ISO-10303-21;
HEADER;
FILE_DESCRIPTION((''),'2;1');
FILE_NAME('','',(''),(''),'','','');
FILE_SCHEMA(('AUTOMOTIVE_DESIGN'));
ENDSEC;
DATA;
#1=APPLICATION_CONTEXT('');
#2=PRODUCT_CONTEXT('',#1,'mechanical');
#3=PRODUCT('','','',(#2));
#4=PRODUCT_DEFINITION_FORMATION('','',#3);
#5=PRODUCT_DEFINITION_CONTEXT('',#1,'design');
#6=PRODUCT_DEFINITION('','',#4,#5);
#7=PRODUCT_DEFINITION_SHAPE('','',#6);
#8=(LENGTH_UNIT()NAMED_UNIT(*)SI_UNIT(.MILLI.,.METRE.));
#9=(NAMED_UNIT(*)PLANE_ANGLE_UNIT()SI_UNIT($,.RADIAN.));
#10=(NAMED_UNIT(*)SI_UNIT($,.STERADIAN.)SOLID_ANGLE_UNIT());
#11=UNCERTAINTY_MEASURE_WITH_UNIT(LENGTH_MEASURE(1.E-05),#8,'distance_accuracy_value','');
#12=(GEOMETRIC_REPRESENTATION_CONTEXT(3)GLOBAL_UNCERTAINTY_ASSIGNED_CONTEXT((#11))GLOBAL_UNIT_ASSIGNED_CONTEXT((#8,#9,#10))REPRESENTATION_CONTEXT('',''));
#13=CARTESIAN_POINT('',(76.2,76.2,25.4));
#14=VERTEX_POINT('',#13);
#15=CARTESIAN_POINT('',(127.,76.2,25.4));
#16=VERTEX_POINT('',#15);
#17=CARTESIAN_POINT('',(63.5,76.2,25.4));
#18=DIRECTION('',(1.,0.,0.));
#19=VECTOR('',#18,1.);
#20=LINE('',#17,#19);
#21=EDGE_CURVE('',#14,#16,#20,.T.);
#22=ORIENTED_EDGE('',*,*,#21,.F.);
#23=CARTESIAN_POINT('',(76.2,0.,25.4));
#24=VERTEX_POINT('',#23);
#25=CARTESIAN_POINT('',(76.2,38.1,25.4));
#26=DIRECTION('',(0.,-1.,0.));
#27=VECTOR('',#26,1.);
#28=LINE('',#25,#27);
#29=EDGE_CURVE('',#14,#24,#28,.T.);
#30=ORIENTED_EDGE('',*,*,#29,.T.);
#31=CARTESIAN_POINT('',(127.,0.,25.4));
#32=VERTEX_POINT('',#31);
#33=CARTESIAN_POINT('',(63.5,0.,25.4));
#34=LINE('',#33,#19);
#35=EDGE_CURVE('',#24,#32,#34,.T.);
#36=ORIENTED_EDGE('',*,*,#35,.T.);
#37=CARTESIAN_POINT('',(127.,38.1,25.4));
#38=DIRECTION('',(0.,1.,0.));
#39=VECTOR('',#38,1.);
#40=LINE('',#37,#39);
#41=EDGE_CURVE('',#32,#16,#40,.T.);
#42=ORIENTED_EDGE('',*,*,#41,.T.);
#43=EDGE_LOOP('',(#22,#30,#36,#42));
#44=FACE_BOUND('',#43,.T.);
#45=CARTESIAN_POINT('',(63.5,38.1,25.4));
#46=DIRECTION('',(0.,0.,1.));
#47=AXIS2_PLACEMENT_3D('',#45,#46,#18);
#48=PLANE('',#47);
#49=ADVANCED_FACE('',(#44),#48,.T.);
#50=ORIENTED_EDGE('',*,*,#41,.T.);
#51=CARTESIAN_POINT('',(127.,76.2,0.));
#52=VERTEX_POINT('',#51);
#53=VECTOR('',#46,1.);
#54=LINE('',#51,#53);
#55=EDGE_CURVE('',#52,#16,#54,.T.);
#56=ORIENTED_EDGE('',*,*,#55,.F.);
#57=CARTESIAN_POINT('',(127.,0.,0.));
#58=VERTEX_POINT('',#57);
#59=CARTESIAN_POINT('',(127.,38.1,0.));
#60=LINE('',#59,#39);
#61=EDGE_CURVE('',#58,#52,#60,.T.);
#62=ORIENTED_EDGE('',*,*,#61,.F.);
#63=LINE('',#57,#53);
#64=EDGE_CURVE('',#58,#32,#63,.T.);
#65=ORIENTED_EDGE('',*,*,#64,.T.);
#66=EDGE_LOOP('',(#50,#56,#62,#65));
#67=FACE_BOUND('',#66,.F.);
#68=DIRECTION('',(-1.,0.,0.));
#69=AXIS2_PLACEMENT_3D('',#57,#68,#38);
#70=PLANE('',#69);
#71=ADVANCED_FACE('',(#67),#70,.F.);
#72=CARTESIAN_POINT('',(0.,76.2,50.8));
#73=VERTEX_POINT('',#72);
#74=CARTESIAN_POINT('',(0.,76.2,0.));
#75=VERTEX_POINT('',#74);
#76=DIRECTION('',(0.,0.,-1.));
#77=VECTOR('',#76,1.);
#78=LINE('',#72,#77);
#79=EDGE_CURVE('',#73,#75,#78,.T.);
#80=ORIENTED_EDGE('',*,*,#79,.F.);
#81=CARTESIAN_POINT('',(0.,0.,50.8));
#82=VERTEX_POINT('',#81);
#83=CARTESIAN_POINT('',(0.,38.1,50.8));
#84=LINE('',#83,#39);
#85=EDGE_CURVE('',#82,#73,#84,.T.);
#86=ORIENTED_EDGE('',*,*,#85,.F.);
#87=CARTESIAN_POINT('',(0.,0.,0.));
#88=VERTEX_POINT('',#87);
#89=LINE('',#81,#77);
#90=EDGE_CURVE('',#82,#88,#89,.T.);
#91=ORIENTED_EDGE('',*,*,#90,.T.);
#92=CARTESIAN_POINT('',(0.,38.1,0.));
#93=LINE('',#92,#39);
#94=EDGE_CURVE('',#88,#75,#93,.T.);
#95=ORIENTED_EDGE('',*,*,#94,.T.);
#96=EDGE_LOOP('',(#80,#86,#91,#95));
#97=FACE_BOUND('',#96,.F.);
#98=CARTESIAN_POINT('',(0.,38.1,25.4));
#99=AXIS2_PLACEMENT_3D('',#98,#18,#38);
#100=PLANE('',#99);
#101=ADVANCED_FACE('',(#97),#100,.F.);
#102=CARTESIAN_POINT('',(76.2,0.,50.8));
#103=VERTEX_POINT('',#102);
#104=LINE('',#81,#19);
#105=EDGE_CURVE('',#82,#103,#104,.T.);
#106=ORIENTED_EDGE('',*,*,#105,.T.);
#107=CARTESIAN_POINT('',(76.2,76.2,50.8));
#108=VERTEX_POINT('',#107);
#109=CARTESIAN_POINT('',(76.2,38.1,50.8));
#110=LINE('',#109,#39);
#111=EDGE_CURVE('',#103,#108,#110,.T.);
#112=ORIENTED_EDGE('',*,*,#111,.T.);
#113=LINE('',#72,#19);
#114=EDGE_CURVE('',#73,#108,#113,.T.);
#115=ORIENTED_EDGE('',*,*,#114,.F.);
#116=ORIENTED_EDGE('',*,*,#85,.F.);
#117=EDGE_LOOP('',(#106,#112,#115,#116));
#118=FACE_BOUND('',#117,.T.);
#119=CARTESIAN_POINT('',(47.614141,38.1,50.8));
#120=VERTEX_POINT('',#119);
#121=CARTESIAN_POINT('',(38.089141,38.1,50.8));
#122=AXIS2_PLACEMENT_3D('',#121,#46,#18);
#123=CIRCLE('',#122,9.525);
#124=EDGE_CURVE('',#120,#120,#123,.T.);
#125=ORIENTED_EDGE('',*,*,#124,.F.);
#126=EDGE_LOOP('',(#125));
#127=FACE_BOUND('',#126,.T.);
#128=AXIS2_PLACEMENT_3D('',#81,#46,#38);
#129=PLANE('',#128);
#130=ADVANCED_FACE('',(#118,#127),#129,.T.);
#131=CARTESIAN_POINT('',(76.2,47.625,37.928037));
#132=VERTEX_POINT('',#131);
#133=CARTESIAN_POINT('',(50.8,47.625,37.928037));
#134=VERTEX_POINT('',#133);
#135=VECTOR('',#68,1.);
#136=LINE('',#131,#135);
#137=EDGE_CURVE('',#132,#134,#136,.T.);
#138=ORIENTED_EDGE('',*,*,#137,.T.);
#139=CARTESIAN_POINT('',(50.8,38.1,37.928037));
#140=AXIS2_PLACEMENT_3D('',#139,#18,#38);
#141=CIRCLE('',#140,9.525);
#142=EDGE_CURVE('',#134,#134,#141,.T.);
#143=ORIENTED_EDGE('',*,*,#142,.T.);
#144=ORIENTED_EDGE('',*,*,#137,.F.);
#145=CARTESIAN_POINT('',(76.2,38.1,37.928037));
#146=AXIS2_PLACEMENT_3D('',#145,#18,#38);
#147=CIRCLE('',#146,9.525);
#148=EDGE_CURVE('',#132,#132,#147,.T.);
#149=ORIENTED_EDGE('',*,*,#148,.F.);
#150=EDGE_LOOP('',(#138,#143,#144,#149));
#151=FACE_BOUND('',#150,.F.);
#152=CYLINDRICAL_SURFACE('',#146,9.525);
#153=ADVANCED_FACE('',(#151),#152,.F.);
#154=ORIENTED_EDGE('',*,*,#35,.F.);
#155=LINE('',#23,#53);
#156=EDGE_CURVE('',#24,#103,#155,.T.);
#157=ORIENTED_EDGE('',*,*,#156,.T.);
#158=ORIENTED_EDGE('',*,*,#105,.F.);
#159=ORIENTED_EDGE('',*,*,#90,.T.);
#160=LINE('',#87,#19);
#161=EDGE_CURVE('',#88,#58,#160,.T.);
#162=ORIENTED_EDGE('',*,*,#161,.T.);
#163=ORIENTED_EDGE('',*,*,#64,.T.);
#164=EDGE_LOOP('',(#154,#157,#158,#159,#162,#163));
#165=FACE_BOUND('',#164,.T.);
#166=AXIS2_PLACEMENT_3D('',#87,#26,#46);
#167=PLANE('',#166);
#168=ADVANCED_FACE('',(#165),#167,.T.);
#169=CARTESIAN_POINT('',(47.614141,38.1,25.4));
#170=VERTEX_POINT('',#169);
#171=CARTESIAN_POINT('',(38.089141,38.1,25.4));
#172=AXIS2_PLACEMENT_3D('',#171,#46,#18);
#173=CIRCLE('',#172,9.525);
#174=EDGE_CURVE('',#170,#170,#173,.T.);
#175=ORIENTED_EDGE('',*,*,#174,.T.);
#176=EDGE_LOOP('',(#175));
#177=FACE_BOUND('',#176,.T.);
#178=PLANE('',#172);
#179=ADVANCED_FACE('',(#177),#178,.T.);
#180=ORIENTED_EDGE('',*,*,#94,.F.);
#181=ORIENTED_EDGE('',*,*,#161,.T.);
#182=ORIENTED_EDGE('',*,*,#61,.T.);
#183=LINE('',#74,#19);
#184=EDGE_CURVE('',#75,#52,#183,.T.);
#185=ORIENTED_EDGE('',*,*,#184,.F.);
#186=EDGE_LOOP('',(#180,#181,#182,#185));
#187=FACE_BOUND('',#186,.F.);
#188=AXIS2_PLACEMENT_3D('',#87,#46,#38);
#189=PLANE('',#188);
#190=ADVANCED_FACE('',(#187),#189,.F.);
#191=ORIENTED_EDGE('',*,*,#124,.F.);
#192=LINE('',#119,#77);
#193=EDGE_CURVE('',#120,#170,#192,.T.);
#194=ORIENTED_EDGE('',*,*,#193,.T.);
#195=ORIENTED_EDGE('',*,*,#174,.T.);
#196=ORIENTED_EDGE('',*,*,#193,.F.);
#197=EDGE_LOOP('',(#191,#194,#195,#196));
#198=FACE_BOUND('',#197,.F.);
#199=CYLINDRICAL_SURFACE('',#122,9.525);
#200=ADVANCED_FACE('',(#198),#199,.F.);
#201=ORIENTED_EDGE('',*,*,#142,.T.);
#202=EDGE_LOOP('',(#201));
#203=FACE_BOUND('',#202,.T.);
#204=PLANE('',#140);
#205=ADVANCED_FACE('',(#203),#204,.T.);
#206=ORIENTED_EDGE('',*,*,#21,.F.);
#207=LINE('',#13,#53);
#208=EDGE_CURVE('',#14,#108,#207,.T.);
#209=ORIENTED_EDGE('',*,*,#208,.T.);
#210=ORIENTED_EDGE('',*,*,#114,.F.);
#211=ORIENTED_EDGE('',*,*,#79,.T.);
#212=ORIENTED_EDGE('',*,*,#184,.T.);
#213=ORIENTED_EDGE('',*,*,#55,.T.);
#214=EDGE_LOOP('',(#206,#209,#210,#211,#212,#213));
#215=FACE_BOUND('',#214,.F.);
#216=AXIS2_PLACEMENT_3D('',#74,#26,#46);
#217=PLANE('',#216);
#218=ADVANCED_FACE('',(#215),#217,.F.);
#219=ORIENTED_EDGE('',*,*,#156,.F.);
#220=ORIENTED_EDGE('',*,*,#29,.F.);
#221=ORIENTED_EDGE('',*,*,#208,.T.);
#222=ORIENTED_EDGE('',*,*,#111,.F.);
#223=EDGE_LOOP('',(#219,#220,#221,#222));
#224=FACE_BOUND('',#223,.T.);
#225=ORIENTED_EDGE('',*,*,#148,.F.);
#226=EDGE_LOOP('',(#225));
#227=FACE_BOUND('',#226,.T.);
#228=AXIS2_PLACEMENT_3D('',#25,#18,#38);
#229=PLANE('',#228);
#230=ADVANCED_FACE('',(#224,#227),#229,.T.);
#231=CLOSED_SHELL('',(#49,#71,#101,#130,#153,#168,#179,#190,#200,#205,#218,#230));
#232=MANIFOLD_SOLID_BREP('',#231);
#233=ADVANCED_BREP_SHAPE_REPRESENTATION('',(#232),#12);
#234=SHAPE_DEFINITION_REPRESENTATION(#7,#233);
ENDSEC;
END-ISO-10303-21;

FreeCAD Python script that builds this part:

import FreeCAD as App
import Part
import Sketcher
from FreeCAD import Vector
Q = App.Units.Quantity


def add_polygon(sketch, points):
    """Adds a closed chain of lines whose ends are joined by coincident constraints."""
    first, n = sketch.GeometryCount, len(points)
    for a, b in zip(points, points[1:] + points[:1]):
        sketch.addGeometry(Part.LineSegment(App.Vector(*a, 0), App.Vector(*b, 0)), False)
    for i in range(n):
        sketch.addConstraint(Sketcher.Constraint("Coincident", first + i, 2, first + (i + 1) % n, 1))

doc = App.newDocument("Part")
params = doc.addObject("Spreadsheet::Sheet", "Params")
for row, (alias, value) in enumerate([
    ("sketch1_width", "3 in"),
    ("sketch1_height", "2 in"),
    ("pad1_length", "3 in"),
    ("sketch2_width", "5 in"),
    ("sketch2_height", "3 in"),
    ("pad2_length", "1 in"),
    ("sketch3_diameter", "0.75 in"),
    ("pocket1_length", "1 in"),
    ("sketch4_diameter", "0.75 in"),
    ("pocket2_length", "1 in"),
], start=1):
    params.set(f"A{row}", alias)
    params.set(f"B{row}", "=" + value)
    params.setAlias(f"B{row}", alias)

body = doc.addObject("PartDesign::Body", "Body")

# Sketch on YZ plane
sketch1 = doc.addObject("Sketcher::SketchObject", "Sketch")
body.addObject(sketch1)
sketch1.AttachmentSupport = (doc.YZ_Plane, [""])
sketch1.MapMode = "FlatFace"
add_polygon(sketch1, [(0, 51), (0, 0), (76, 0), (76, 51)])  # lines 0-3
sketch1.addConstraint(Sketcher.Constraint("Vertical", 0))
sketch1.addConstraint(Sketcher.Constraint("Horizontal", 1))
sketch1.addConstraint(Sketcher.Constraint("Vertical", 2))
sketch1.addConstraint(Sketcher.Constraint("Horizontal", 3))
sketch1.addConstraint(Sketcher.Constraint("Coincident", 0, 2, -1, 1))
sketch1.addConstraint(Sketcher.Constraint("DistanceX", 1, 1, 1, 2, Q("3 in")))
sketch1.addConstraint(Sketcher.Constraint("DistanceY", 0, 2, 0, 1, Q("2 in")))
sketch1.setExpression("Constraints[9]", "Params.sketch1_width")
sketch1.setExpression("Constraints[10]", "Params.sketch1_height")
pad1 = doc.addObject("PartDesign::Pad", "Pad")
body.addObject(pad1)
pad1.Profile = sketch1
pad1.setExpression("Length", "Params.pad1_length")

# Sketch on XY plane
sketch2 = doc.addObject("Sketcher::SketchObject", "Sketch001")
body.addObject(sketch2)
sketch2.AttachmentSupport = (doc.XY_Plane, [""])
sketch2.MapMode = "FlatFace"
add_polygon(sketch2, [(0, 76), (0, 0), (127, 0), (127, 76)])  # lines 0-3
sketch2.addConstraint(Sketcher.Constraint("Vertical", 0))
sketch2.addConstraint(Sketcher.Constraint("Horizontal", 1))
sketch2.addConstraint(Sketcher.Constraint("Vertical", 2))
sketch2.addConstraint(Sketcher.Constraint("Horizontal", 3))
sketch2.addConstraint(Sketcher.Constraint("Coincident", 0, 2, -1, 1))
sketch2.addConstraint(Sketcher.Constraint("DistanceX", 1, 1, 1, 2, Q("5 in")))
sketch2.addConstraint(Sketcher.Constraint("DistanceY", 0, 2, 0, 1, Q("3 in")))
sketch2.setExpression("Constraints[9]", "Params.sketch2_width")
sketch2.setExpression("Constraints[10]", "Params.sketch2_height")
pad2 = doc.addObject("PartDesign::Pad", "Pad001")
body.addObject(pad2)
pad2.Profile = sketch2
pad2.setExpression("Length", "Params.pad2_length")

# Sketch on XY plane
sketch3 = doc.addObject("Sketcher::SketchObject", "Sketch002")
body.addObject(sketch3)
sketch3.AttachmentSupport = (doc.XY_Plane, [""])
sketch3.MapMode = "FlatFace"
sketch3.AttachmentOffset = App.Placement(Vector(0, 0, 2 * 25.4), App.Rotation())
sketch3.addGeometry(Part.Circle(Vector(38, 38, 0), Vector(0, 0, 1), 10), False)
sketch3.addConstraint(Sketcher.Constraint("Diameter", 0, Q("0.75 in")))
sketch3.addConstraint(Sketcher.Constraint("DistanceY", -1, 1, 0, 3, Q("1.5 in")))
sketch3.addConstraint(Sketcher.Constraint("DistanceX", -1, 1, 0, 3, 38.089141))
sketch3.setExpression("Constraints[0]", "Params.sketch3_diameter")
pocket1 = doc.addObject("PartDesign::Pocket", "Pocket")
body.addObject(pocket1)
pocket1.Profile = sketch3
pocket1.setExpression("Length", "Params.pocket1_length")

# Sketch on YZ plane
sketch4 = doc.addObject("Sketcher::SketchObject", "Sketch003")
body.addObject(sketch4)
sketch4.AttachmentSupport = (doc.YZ_Plane, [""])
sketch4.MapMode = "FlatFace"
sketch4.AttachmentOffset = App.Placement(Vector(0, 0, 3 * 25.4), App.Rotation())
sketch4.addGeometry(Part.Circle(Vector(38, 38, 0), Vector(0, 0, 1), 10), False)
sketch4.addConstraint(Sketcher.Constraint("Diameter", 0, Q("0.75 in")))
sketch4.addConstraint(Sketcher.Constraint("DistanceX", -1, 1, 0, 3, Q("1.5 in")))
sketch4.addConstraint(Sketcher.Constraint("DistanceY", -1, 1, 0, 3, 37.928037))
sketch4.setExpression("Constraints[0]", "Params.sketch4_diameter")
pocket2 = doc.addObject("PartDesign::Pocket", "Pocket001")
body.addObject(pocket2)
pocket2.Profile = sketch4
pocket2.setExpression("Length", "Params.pocket2_length")

doc.recompute()
